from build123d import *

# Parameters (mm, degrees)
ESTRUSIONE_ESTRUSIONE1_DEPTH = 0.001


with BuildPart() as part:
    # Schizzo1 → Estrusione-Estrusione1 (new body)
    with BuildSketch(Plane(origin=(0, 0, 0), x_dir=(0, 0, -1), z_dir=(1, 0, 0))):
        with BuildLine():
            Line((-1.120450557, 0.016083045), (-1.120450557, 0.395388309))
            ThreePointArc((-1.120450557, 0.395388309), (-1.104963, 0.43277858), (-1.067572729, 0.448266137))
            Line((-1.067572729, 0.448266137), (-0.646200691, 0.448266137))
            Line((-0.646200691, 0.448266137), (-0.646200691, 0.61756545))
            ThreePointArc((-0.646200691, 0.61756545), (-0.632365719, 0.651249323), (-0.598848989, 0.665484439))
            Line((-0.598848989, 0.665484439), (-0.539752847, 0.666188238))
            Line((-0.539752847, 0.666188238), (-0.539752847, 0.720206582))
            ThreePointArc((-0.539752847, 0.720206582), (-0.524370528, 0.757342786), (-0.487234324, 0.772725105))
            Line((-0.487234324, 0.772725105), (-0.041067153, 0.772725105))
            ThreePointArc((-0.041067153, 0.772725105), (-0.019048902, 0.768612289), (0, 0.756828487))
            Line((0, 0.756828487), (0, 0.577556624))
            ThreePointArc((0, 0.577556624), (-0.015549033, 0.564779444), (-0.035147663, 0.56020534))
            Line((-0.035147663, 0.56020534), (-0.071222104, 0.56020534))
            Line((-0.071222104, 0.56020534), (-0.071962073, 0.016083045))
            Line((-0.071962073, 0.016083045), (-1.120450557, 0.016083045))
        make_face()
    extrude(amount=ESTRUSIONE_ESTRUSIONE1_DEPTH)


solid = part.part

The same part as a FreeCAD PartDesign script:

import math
import FreeCAD as App
import Part
import Sketcher

V = App.Vector

doc = App.newDocument("Part")
params = doc.addObject("Spreadsheet::Sheet", "Params")
for row, (alias, value) in enumerate([
    ("pad1_length", "0.001 mm"),
], start=1):
    params.set(f"A{row}", alias)
    params.set(f"B{row}", "=" + value)
    params.setAlias(f"B{row}", alias)

body = doc.addObject("PartDesign::Body", "Body")

# Sketch on YZ plane
sketch1 = body.newObject("Sketcher::SketchObject", "Sketch")
sketch1.AttachmentSupport = (doc.getObject("YZ_Plane"), [""])
sketch1.MapMode = "FlatFace"
sketch1.addGeometry(Part.LineSegment(V(0.395388, 1.120451, 0), V(0.016083, 1.120451, 0)), False)
sketch1.addGeometry(Part.LineSegment(V(0.016083, 1.120451, 0), V(0.016083, 0.071962, 0)), False)
sketch1.addGeometry(Part.LineSegment(V(0.016083, 0.071962, 0), V(0.560205, 0.071222, 0)), False)
sketch1.addGeometry(Part.LineSegment(V(0.560205, 0.071222, 0), V(0.560205, 0.035148, 0)), False)
sketch1.addGeometry(Part.ArcOfCircle(Part.Circle(V(0.604479, 0.035148, 0), V(0, 0, 1), 0.044274), math.radians(-179.999999), math.radians(-127.451824)), False)
sketch1.addGeometry(Part.LineSegment(V(0.577557, 0, 0), V(0.756828, 0, 0)), False)
sketch1.addGeometry(Part.ArcOfCircle(Part.Circle(V(0.711731, 0.041067, 0), V(0, 0, 1), 0.060995), math.radians(-42.321687), math.radians(0.000003)), False)
sketch1.addGeometry(Part.LineSegment(V(0.772725, 0.041067, 0), V(0.772725, 0.487234, 0)), False)
sketch1.addGeometry(Part.ArcOfCircle(Part.Circle(V(0.720207, 0.487234, 0), V(0, 0, 1), 0.052519), math.radians(-0.000001), math.radians(90.000001)), False)
sketch1.addGeometry(Part.LineSegment(V(0.720207, 0.539753, 0), V(0.666188, 0.539753, 0)), False)
sketch1.addGeometry(Part.LineSegment(V(0.666188, 0.539753, 0), V(0.665484, 0.598849, 0)), False)
sketch1.addGeometry(Part.ArcOfCircle(Part.Circle(V(0.617565, 0.598278, 0), V(0, 0, 1), 0.047922), math.radians(0.682326), math.radians(90)), False)
sketch1.addGeometry(Part.LineSegment(V(0.617565, 0.646201, 0), V(0.448266, 0.646201, 0)), False)
sketch1.addGeometry(Part.LineSegment(V(0.448266, 0.646201, 0), V(0.448266, 1.067573, 0)), False)
sketch1.addGeometry(Part.ArcOfCircle(Part.Circle(V(0.395388, 1.067573, 0), V(0, 0, 1), 0.052878), math.radians(-0.000001), math.radians(90.000001)), False)
sketch1.addConstraint(Sketcher.Constraint("Coincident", 0, 2, 1, 1))
sketch1.addConstraint(Sketcher.Constraint("Coincident", 1, 2, 2, 1))
sketch1.addConstraint(Sketcher.Constraint("Coincident", 2, 2, 3, 1))
sketch1.addConstraint(Sketcher.Constraint("Tangent", 3, 2, 4, 1))
sketch1.addConstraint(Sketcher.Constraint("Coincident", 4, 2, 5, 1))
sketch1.addConstraint(Sketcher.Constraint("Coincident", 5, 2, 6, 1))
sketch1.addConstraint(Sketcher.Constraint("Tangent", 6, 2, 7, 1))
sketch1.addConstraint(Sketcher.Constraint("Tangent", 7, 2, 8, 1))
sketch1.addConstraint(Sketcher.Constraint("Tangent", 8, 2, 9, 1))
sketch1.addConstraint(Sketcher.Constraint("Coincident", 9, 2, 10, 1))
sketch1.addConstraint(Sketcher.Constraint("Tangent", 10, 2, 11, 1))
sketch1.addConstraint(Sketcher.Constraint("Tangent", 11, 2, 12, 1))
sketch1.addConstraint(Sketcher.Constraint("Coincident", 12, 2, 13, 1))
sketch1.addConstraint(Sketcher.Constraint("Tangent", 13, 2, 14, 1))
sketch1.addConstraint(Sketcher.Constraint("Tangent", 14, 2, 0, 1))
sketch1.addConstraint(Sketcher.Constraint("Horizontal", 0))
sketch1.addConstraint(Sketcher.Constraint("Vertical", 1))
sketch1.addConstraint(Sketcher.Constraint("Vertical", 3))
sketch1.addConstraint(Sketcher.Constraint("Horizontal", 5))
sketch1.addConstraint(Sketcher.Constraint("Vertical", 7))
sketch1.addConstraint(Sketcher.Constraint("Horizontal", 9))
sketch1.addConstraint(Sketcher.Constraint("Horizontal", 12))
sketch1.addConstraint(Sketcher.Constraint("Vertical", 13))
sketch1.addConstraint(Sketcher.Constraint("PointOnObject", 4, 2, -1))
sketch1.addConstraint(Sketcher.Constraint("Radius", 8, 0.052519))
sketch1.addConstraint(Sketcher.Constraint("DistanceX", 2, 2, 8, 3, 0.160001))
sketch1.addConstraint(Sketcher.Constraint("DistanceX", 12, 2, 12, 1, 0.169299))
sketch1.addConstraint(Sketcher.Constraint("Radius", 4, 0.044274))
sketch1.addConstraint(Sketcher.Constraint("Radius", 6, 0.060995))
sketch1.addConstraint(Sketcher.Constraint("Radius", 11, 0.047922))
sketch1.addConstraint(Sketcher.Constraint("Radius", 14, 0.052878))
sketch1.addConstraint(Sketcher.Constraint("Distance", 10, 0.0591))
sketch1.addConstraint(Sketcher.Constraint("DistanceX", 5, 1, 5, 2, 0.179272))
sketch1.addConstraint(Sketcher.Constraint("DistanceX", 9, 2, 9, 1, 0.054018))
sketch1.addConstraint(Sketcher.Constraint("DistanceY", 1, 2, 1, 1, 1.048488))
sketch1.addConstraint(Sketcher.Constraint("DistanceY", -1, 1, 11, 2, 0.646201))
sketch1.addConstraint(Sketcher.Constraint("DistanceX", 0, 2, 0, 1, 0.379305))
sketch1.addConstraint(Sketcher.Constraint("DistanceY", 3, 2, 3, 1, 0.036074))
sketch1.addConstraint(Sketcher.Constraint("DistanceY", 7, 1, 7, 2, 0.446167))
sketch1.addConstraint(Sketcher.Constraint("DistanceY", 13, 1, 13, 2, 0.421372))
sketch1.addConstraint(Sketcher.Constraint("DistanceX", -1, 1, 4, 3, 0.604479))
sketch1.addConstraint(Sketcher.Constraint("DistanceX", -1, 1, 14, 3, 0.395388))
pad1 = body.newObject("PartDesign::Pad", "Pad")
pad1.Profile = sketch1
pad1.setExpression("Length", "Params.pad1_length")

doc.recompute()
